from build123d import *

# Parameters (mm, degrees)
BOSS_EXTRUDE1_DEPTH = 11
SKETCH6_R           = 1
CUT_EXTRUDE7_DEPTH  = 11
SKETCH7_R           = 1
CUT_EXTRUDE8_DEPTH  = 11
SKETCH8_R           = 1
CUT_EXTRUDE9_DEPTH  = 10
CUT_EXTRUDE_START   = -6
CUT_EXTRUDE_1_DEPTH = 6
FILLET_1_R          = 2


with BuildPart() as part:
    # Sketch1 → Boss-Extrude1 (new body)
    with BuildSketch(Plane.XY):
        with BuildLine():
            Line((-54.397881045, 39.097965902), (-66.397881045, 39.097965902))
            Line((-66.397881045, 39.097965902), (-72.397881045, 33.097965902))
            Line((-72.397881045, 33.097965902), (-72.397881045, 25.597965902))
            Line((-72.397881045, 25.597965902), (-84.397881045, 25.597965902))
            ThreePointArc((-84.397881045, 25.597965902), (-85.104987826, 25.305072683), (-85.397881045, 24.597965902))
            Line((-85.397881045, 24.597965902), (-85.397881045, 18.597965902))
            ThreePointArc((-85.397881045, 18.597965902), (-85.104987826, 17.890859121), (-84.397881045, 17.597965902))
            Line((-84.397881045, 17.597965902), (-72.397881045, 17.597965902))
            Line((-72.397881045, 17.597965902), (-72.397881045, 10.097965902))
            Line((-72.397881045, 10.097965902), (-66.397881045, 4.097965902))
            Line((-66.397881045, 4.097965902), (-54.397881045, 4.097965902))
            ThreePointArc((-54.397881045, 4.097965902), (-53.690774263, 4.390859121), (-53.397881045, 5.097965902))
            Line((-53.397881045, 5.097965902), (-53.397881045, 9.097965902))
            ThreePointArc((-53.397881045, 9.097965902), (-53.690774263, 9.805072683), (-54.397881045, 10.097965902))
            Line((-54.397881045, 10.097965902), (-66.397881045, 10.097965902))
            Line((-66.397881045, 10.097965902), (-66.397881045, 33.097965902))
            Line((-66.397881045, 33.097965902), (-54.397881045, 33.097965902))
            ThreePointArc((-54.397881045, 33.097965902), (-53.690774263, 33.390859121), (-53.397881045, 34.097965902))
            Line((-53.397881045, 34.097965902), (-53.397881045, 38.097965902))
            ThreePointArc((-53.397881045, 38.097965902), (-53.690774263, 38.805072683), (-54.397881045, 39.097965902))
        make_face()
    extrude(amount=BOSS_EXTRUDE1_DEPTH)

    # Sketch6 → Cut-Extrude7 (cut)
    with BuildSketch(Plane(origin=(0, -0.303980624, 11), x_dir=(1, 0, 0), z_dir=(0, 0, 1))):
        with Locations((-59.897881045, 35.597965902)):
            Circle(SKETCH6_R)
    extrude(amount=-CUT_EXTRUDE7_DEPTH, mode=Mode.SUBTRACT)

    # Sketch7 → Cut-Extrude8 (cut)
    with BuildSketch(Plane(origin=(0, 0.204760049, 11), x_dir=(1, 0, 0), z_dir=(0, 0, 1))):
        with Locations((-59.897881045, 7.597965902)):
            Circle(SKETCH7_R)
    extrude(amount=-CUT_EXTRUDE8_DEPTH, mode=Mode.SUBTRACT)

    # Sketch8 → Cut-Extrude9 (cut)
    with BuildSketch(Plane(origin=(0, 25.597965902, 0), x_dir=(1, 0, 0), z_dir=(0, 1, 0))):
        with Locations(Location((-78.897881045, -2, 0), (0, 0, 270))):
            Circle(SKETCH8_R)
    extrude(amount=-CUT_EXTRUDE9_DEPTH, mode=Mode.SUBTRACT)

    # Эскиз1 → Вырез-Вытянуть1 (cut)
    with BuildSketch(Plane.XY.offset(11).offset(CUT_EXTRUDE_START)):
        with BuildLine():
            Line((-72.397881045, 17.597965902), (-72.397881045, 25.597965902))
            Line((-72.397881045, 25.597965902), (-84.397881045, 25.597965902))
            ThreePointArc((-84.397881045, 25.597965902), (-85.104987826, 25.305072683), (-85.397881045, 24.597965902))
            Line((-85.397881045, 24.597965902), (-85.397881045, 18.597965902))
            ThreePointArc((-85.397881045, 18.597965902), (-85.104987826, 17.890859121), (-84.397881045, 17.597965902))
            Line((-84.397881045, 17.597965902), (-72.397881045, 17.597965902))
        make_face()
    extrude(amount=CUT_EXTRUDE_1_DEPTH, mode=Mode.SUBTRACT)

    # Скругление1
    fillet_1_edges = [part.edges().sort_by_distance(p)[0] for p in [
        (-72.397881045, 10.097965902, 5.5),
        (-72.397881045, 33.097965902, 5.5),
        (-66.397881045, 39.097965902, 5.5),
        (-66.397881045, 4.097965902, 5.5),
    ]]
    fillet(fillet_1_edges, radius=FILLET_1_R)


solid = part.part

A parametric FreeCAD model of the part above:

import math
import FreeCAD as App
import Part
import Sketcher

V = App.Vector


def edges_at(feature, points):
    """Names of the edges that pass closest to the given points."""
    edges = feature.Shape.Edges
    near = lambda p: min(range(len(edges)), key=lambda i: edges[i].distToShape(Part.Vertex(*p))[0])
    return sorted({f"Edge{near(p) + 1}" for p in points})

doc = App.newDocument("Part")
body = doc.addObject("PartDesign::Body", "Body")

# Sketch on XY plane
sketch1 = doc.addObject("Sketcher::SketchObject", "Sketch")
body.addObject(sketch1)
sketch1.AttachmentSupport = (doc.XY_Plane, [""])
sketch1.MapMode = "FlatFace"
sketch1.addGeometry(Part.LineSegment(V(-54.397881, 39.097966, 0), V(-66.397881, 39.097966, 0)), False)
sketch1.addGeometry(Part.LineSegment(V(-66.397881, 39.097966, 0), V(-72.397881, 33.097966, 0)), False)
sketch1.addGeometry(Part.LineSegment(V(-72.397881, 33.097966, 0), V(-72.397881, 25.597966, 0)), False)
sketch1.addGeometry(Part.LineSegment(V(-72.397881, 25.597966, 0), V(-84.397881, 25.597966, 0)), False)
sketch1.addGeometry(Part.ArcOfCircle(Part.Circle(V(-84.397881, 24.597966, 0), V(0, 0, 1), 1), math.radians(90), math.radians(180)), False)
sketch1.addGeometry(Part.LineSegment(V(-85.397881, 24.597966, 0), V(-85.397881, 18.597966, 0)), False)
sketch1.addGeometry(Part.ArcOfCircle(Part.Circle(V(-84.397881, 18.597966, 0), V(0, 0, 1), 1), math.radians(-180), math.radians(-90)), False)
sketch1.addGeometry(Part.LineSegment(V(-84.397881, 17.597966, 0), V(-72.397881, 17.597966, 0)), False)
sketch1.addGeometry(Part.LineSegment(V(-72.397881, 17.597966, 0), V(-72.397881, 10.097966, 0)), False)
sketch1.addGeometry(Part.LineSegment(V(-72.397881, 10.097966, 0), V(-66.397881, 4.097966, 0)), False)
sketch1.addGeometry(Part.LineSegment(V(-66.397881, 4.097966, 0), V(-54.397881, 4.097966, 0)), False)
sketch1.addGeometry(Part.ArcOfCircle(Part.Circle(V(-54.397881, 5.097966, 0), V(0, 0, 1), 1), math.radians(-90), math.radians(0)), False)
sketch1.addGeometry(Part.LineSegment(V(-53.397881, 5.097966, 0), V(-53.397881, 9.097966, 0)), False)
sketch1.addGeometry(Part.ArcOfCircle(Part.Circle(V(-54.397881, 9.097966, 0), V(0, 0, 1), 1), math.radians(0), math.radians(90)), False)
sketch1.addGeometry(Part.LineSegment(V(-54.397881, 10.097966, 0), V(-66.397881, 10.097966, 0)), False)
sketch1.addGeometry(Part.LineSegment(V(-66.397881, 10.097966, 0), V(-66.397881, 33.097966, 0)), False)
sketch1.addGeometry(Part.LineSegment(V(-66.397881, 33.097966, 0), V(-54.397881, 33.097966, 0)), False)
sketch1.addGeometry(Part.ArcOfCircle(Part.Circle(V(-54.397881, 34.097966, 0), V(0, 0, 1), 1), math.radians(-90), math.radians(0)), False)
sketch1.addGeometry(Part.LineSegment(V(-53.397881, 34.097966, 0), V(-53.397881, 38.097966, 0)), False)
sketch1.addGeometry(Part.ArcOfCircle(Part.Circle(V(-54.397881, 38.097966, 0), V(0, 0, 1), 1), math.radians(0), math.radians(90)), False)
sketch1.addConstraint(Sketcher.Constraint("Coincident", 0, 2, 1, 1))
sketch1.addConstraint(Sketcher.Constraint("Coincident", 1, 2, 2, 1))
sketch1.addConstraint(Sketcher.Constraint("Coincident", 2, 2, 3, 1))
sketch1.addConstraint(Sketcher.Constraint("Tangent", 3, 2, 4, 1))
sketch1.addConstraint(Sketcher.Constraint("Tangent", 4, 2, 5, 1))
sketch1.addConstraint(Sketcher.Constraint("Tangent", 5, 2, 6, 1))
sketch1.addConstraint(Sketcher.Constraint("Tangent", 6, 2, 7, 1))
sketch1.addConstraint(Sketcher.Constraint("Coincident", 7, 2, 8, 1))
sketch1.addConstraint(Sketcher.Constraint("Coincident", 8, 2, 9, 1))
sketch1.addConstraint(Sketcher.Constraint("Coincident", 9, 2, 10, 1))
sketch1.addConstraint(Sketcher.Constraint("Tangent", 10, 2, 11, 1))
sketch1.addConstraint(Sketcher.Constraint("Tangent", 11, 2, 12, 1))
sketch1.addConstraint(Sketcher.Constraint("Tangent", 12, 2, 13, 1))
sketch1.addConstraint(Sketcher.Constraint("Tangent", 13, 2, 14, 1))
sketch1.addConstraint(Sketcher.Constraint("Coincident", 14, 2, 15, 1))
sketch1.addConstraint(Sketcher.Constraint("Coincident", 15, 2, 16, 1))
sketch1.addConstraint(Sketcher.Constraint("Tangent", 16, 2, 17, 1))
sketch1.addConstraint(Sketcher.Constraint("Tangent", 17, 2, 18, 1))
sketch1.addConstraint(Sketcher.Constraint("Tangent", 18, 2, 19, 1))
sketch1.addConstraint(Sketcher.Constraint("Tangent", 19, 2, 0, 1))
sketch1.addConstraint(Sketcher.Constraint("Horizontal", 0))
sketch1.addConstraint(Sketcher.Constraint("Vertical", 2))
sketch1.addConstraint(Sketcher.Constraint("Horizontal", 3))
sketch1.addConstraint(Sketcher.Constraint("Vertical", 5))
sketch1.addConstraint(Sketcher.Constraint("Horizontal", 7))
sketch1.addConstraint(Sketcher.Constraint("Vertical", 8))
sketch1.addConstraint(Sketcher.Constraint("Horizontal", 10))
sketch1.addConstraint(Sketcher.Constraint("Vertical", 12))
sketch1.addConstraint(Sketcher.Constraint("Horizontal", 14))
sketch1.addConstraint(Sketcher.Constraint("Vertical", 15))
sketch1.addConstraint(Sketcher.Constraint("Horizontal", 16))
sketch1.addConstraint(Sketcher.Constraint("Vertical", 18))
sketch1.addConstraint(Sketcher.Constraint("Equal", 4, 6))
sketch1.addConstraint(Sketcher.Constraint("Equal", 6, 11))
sketch1.addConstraint(Sketcher.Constraint("Equal", 11, 13))
sketch1.addConstraint(Sketcher.Constraint("Equal", 13, 17))
sketch1.addConstraint(Sketcher.Constraint("Equal", 17, 19))
sketch1.addConstraint(Sketcher.Constraint("Perpendicular", 1, 9))
sketch1.addConstraint(Sketcher.Constraint("Horizontal", 8, 2, 13, 2))
sketch1.addConstraint(Sketcher.Constraint("Horizontal", 1, 2, 15, 2))
sketch1.addConstraint(Sketcher.Constraint("Vertical", 13, 3, 17, 3))
sketch1.addConstraint(Sketcher.Constraint("Vertical", 2, 2, 7, 2))
sketch1.addConstraint(Sketcher.Constraint("Vertical", 0, 2, 9, 2))
sketch1.addConstraint(Sketcher.Constraint("Vertical", 9, 2, 14, 2))
sketch1.addConstraint(Sketcher.Constraint("Equal", 0, 3))
sketch1.addConstraint(Sketcher.Constraint("Equal", 2, 8))
sketch1.addConstraint(Sketcher.Constraint("Equal", 12, 18))
sketch1.addConstraint(Sketcher.Constraint("Radius", 4, 1.0))
sketch1.addConstraint(Sketcher.Constraint("DistanceX", 0, 2, 0, 1, 12.0))
sketch1.addConstraint(Sketcher.Constraint("DistanceY", 5, 2, 5, 1, 6.0))
sketch1.addConstraint(Sketcher.Constraint("DistanceY", 12, 1, 12, 2, 4.0))
sketch1.addConstraint(Sketcher.Constraint("DistanceY", 15, 1, 15, 2, 23.0))
sketch1.addConstraint(Sketcher.Constraint("DistanceX", 4, 3, -1, 1, 84.397881))
sketch1.addConstraint(Sketcher.Constraint("DistanceY", -1, 1, 4, 3, 24.597966))
pad1 = doc.addObject("PartDesign::Pad", "Pad")
body.addObject(pad1)
pad1.Profile = sketch1
pad1.Length = 11

# Sketch on XY plane
sketch2 = doc.addObject("Sketcher::SketchObject", "Sketch001")
body.addObject(sketch2)
sketch2.AttachmentSupport = (doc.XY_Plane, [""])
sketch2.MapMode = "FlatFace"
sketch2.AttachmentOffset = App.Placement(V(0, 0, 11), App.Rotation())
sketch2.addGeometry(Part.Circle(V(-59.897881, 35.293985, 0), V(0, 0, 1), 1), False)
sketch2.addConstraint(Sketcher.Constraint("Diameter", 0, 2.0))
sketch2.addConstraint(Sketcher.Constraint("DistanceX", 0, 3, -1, 1, 59.897881))
sketch2.addConstraint(Sketcher.Constraint("DistanceY", -1, 1, 0, 3, 35.293985))
pocket1 = doc.addObject("PartDesign::Pocket", "Pocket")
body.addObject(pocket1)
pocket1.Profile = sketch2
pocket1.Length = 11

# Sketch on XY plane
sketch3 = doc.addObject("Sketcher::SketchObject", "Sketch002")
body.addObject(sketch3)
sketch3.AttachmentSupport = (doc.XY_Plane, [""])
sketch3.MapMode = "FlatFace"
sketch3.AttachmentOffset = App.Placement(V(0, 0, 11), App.Rotation())
sketch3.addGeometry(Part.Circle(V(-59.897881, 7.802726, 0), V(0, 0, 1), 1), False)
sketch3.addConstraint(Sketcher.Constraint("Diameter", 0, 2.0))
sketch3.addConstraint(Sketcher.Constraint("DistanceX", 0, 3, -1, 1, 59.897881))
sketch3.addConstraint(Sketcher.Constraint("DistanceY", -1, 1, 0, 3, 7.802726))
pocket2 = doc.addObject("PartDesign::Pocket", "Pocket001")
body.addObject(pocket2)
pocket2.Profile = sketch3
pocket2.Length = 11

# Sketch on XZ plane
sketch4 = doc.addObject("Sketcher::SketchObject", "Sketch003")
body.addObject(sketch4)
sketch4.AttachmentSupport = (doc.XZ_Plane, [""])
sketch4.MapMode = "FlatFace"
sketch4.AttachmentOffset = App.Placement(V(0, 0, -25.597966), App.Rotation())
sketch4.addGeometry(Part.Circle(V(-78.897881, 2, 0), V(0, 0, 1), 1), False)
sketch4.addConstraint(Sketcher.Constraint("Diameter", 0, 2.0))
sketch4.addConstraint(Sketcher.Constraint("DistanceY", -1, 1, 0, 3, 2.0))
sketch4.addConstraint(Sketcher.Constraint("DistanceX", 0, 3, -1, 1, 78.897881))
pocket3 = doc.addObject("PartDesign::Pocket", "Pocket002")
body.addObject(pocket3)
pocket3.Profile = sketch4
pocket3.Length = 10
pocket3.Reversed = True

# Sketch on XY plane
sketch5 = doc.addObject("Sketcher::SketchObject", "Sketch004")
body.addObject(sketch5)
sketch5.AttachmentSupport = (doc.XY_Plane, [""])
sketch5.MapMode = "FlatFace"
sketch5.AttachmentOffset = App.Placement(V(0, 0, 5), App.Rotation())
sketch5.addGeometry(Part.LineSegment(V(-72.397881, 17.597966, 0), V(-72.397881, 25.597966, 0)), False)
sketch5.addGeometry(Part.LineSegment(V(-72.397881, 25.597966, 0), V(-84.397881, 25.597966, 0)), False)
sketch5.addGeometry(Part.ArcOfCircle(Part.Circle(V(-84.397881, 24.597966, 0), V(0, 0, 1), 1), math.radians(90), math.radians(180)), False)
sketch5.addGeometry(Part.LineSegment(V(-85.397881, 24.597966, 0), V(-85.397881, 18.597966, 0)), False)
sketch5.addGeometry(Part.ArcOfCircle(Part.Circle(V(-84.397881, 18.597966, 0), V(0, 0, 1), 1), math.radians(-180), math.radians(-90)), False)
sketch5.addGeometry(Part.LineSegment(V(-84.397881, 17.597966, 0), V(-72.397881, 17.597966, 0)), False)
sketch5.addConstraint(Sketcher.Constraint("Coincident", 0, 2, 1, 1))
sketch5.addConstraint(Sketcher.Constraint("Tangent", 1, 2, 2, 1))
sketch5.addConstraint(Sketcher.Constraint("Tangent", 2, 2, 3, 1))
sketch5.addConstraint(Sketcher.Constraint("Tangent", 3, 2, 4, 1))
sketch5.addConstraint(Sketcher.Constraint("Tangent", 4, 2, 5, 1))
sketch5.addConstraint(Sketcher.Constraint("Coincident", 5, 2, 0, 1))
sketch5.addConstraint(Sketcher.Constraint("Vertical", 0))
sketch5.addConstraint(Sketcher.Constraint("Horizontal", 1))
sketch5.addConstraint(Sketcher.Constraint("Vertical", 3))
sketch5.addConstraint(Sketcher.Constraint("Horizontal", 5))
sketch5.addConstraint(Sketcher.Constraint("Equal", 2, 4))
sketch5.addConstraint(Sketcher.Constraint("Radius", 2, 1.0))
sketch5.addConstraint(Sketcher.Constraint("DistanceX", 1, 2, 1, 1, 12.0))
sketch5.addConstraint(Sketcher.Constraint("DistanceY", 0, 1, 0, 2, 8.0))
sketch5.addConstraint(Sketcher.Constraint("DistanceX", 2, 3, -1, 1, 84.397881))
sketch5.addConstraint(Sketcher.Constraint("DistanceY", -1, 1, 2, 3, 24.597966))
pocket4 = doc.addObject("PartDesign::Pocket", "Pocket003")
body.addObject(pocket4)
pocket4.Profile = sketch5
pocket4.Length = 6
pocket4.Reversed = True
doc.recompute()

fillet = doc.addObject("PartDesign::Fillet", "Fillet")
body.addObject(fillet)
fillet.Base = (pocket4, edges_at(pocket4, [
    (-72.398, 10.098, 5.5),
    (-72.398, 33.098, 5.5),
    (-66.398, 39.098, 5.5),
    (-66.398, 4.098, 5.5),
]))
fillet.Radius = 2

doc.recompute()
